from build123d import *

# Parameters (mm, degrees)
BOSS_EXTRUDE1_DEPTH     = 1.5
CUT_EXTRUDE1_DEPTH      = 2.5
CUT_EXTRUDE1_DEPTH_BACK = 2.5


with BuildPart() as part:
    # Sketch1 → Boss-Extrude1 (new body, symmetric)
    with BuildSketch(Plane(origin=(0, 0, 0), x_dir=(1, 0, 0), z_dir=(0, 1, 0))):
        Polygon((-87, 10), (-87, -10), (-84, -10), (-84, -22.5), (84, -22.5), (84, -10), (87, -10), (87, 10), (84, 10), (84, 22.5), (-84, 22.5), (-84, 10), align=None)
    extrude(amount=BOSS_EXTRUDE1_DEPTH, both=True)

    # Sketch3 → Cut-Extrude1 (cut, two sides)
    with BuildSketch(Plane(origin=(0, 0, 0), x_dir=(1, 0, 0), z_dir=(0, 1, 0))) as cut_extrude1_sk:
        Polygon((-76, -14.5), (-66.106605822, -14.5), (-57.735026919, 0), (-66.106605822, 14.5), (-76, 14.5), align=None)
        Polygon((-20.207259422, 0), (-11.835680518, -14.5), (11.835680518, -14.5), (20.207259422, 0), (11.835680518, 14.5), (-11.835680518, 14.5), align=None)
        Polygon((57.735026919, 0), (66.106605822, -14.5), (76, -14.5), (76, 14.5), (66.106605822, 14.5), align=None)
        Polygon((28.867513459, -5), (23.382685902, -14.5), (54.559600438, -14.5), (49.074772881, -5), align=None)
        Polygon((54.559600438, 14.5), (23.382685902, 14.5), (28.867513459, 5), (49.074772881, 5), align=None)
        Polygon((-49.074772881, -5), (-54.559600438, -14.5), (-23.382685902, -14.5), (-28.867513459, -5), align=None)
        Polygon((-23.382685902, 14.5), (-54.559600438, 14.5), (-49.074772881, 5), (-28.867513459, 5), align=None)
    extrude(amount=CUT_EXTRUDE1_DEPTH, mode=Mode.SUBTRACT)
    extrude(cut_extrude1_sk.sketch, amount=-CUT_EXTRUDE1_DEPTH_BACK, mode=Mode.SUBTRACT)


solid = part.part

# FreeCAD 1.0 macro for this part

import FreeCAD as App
import Part
import Sketcher
from FreeCAD import Vector
Q = App.Units.Quantity

doc = App.newDocument("Part")
body = doc.addObject("PartDesign::Body", "Body")

# Sketch on XZ plane
sketch1 = doc.addObject("Sketcher::SketchObject", "Sketch")
body.addObject(sketch1)
sketch1.AttachmentSupport = (doc.XZ_Plane, [""])
sketch1.MapMode = "FlatFace"
sketch1.addGeometry([
    Part.LineSegment(Vector(-87, -10, 0), Vector(-87, 10, 0)),  # 0
    Part.LineSegment(Vector(-87, 10, 0), Vector(-84, 10, 0)),  # 1
    Part.LineSegment(Vector(-84, 10, 0), Vector(-84, 22.5, 0)),  # 2
    Part.LineSegment(Vector(-84, 22.5, 0), Vector(84, 22.5, 0)),  # 3
    Part.LineSegment(Vector(84, 22.5, 0), Vector(84, 10, 0)),  # 4
    Part.LineSegment(Vector(84, 10, 0), Vector(87, 10, 0)),  # 5
    Part.LineSegment(Vector(87, 10, 0), Vector(87, -10, 0)),  # 6
    Part.LineSegment(Vector(87, -10, 0), Vector(84, -10, 0)),  # 7
    Part.LineSegment(Vector(84, -10, 0), Vector(84, -22.5, 0)),  # 8
    Part.LineSegment(Vector(84, -22.5, 0), Vector(-84, -22.5, 0)),  # 9
    Part.LineSegment(Vector(-84, -22.5, 0), Vector(-84, -10, 0)),  # 10
    Part.LineSegment(Vector(-84, -10, 0), Vector(-87, -10, 0)),  # 11
], False)
sketch1.addConstraint([
    Sketcher.Constraint("Coincident", 0, 2, 1, 1),
    Sketcher.Constraint("Coincident", 1, 2, 2, 1),
    Sketcher.Constraint("Coincident", 2, 2, 3, 1),
    Sketcher.Constraint("Coincident", 3, 2, 4, 1),
    Sketcher.Constraint("Coincident", 4, 2, 5, 1),
    Sketcher.Constraint("Coincident", 5, 2, 6, 1),
    Sketcher.Constraint("Coincident", 6, 2, 7, 1),
    Sketcher.Constraint("Coincident", 7, 2, 8, 1),
    Sketcher.Constraint("Coincident", 8, 2, 9, 1),
    Sketcher.Constraint("Coincident", 9, 2, 10, 1),
    Sketcher.Constraint("Coincident", 10, 2, 11, 1),
    Sketcher.Constraint("Coincident", 11, 2, 0, 1),
    Sketcher.Constraint("Vertical", 0),
    Sketcher.Constraint("Horizontal", 1),
    Sketcher.Constraint("Vertical", 2),
    Sketcher.Constraint("Horizontal", 3),
    Sketcher.Constraint("Vertical", 4),
    Sketcher.Constraint("Horizontal", 5),
    Sketcher.Constraint("Vertical", 6),
    Sketcher.Constraint("Horizontal", 7),
    Sketcher.Constraint("Vertical", 8),
    Sketcher.Constraint("Horizontal", 9),
    Sketcher.Constraint("Vertical", 10),
    Sketcher.Constraint("Horizontal", 11),
    Sketcher.Constraint("Symmetric", 0, 2, 6, 2, -1, 1),
    Sketcher.Constraint("Symmetric", 2, 2, 8, 2, -1, 1),
    Sketcher.Constraint("Symmetric", 4, 2, 10, 2, -1, 1),
    Sketcher.Constraint("Symmetric", 1, 2, 4, 2, -2),
    Sketcher.Constraint("DistanceX", 1, 1, 1, 2, Q("3 mm")),
    Sketcher.Constraint("DistanceX", 3, 1, 3, 2, Q("168 mm")),
    Sketcher.Constraint("DistanceY", 0, 1, 0, 2, Q("20 mm")),
    Sketcher.Constraint("DistanceY", 2, 1, 2, 2, Q("12.5 mm")),
])
pad1 = doc.addObject("PartDesign::Pad", "Pad")
body.addObject(pad1)
pad1.Profile = sketch1
pad1.Length = 3
pad1.Midplane = True

# Sketch on XZ plane
sketch2 = doc.addObject("Sketcher::SketchObject", "Sketch001")
body.addObject(sketch2)
sketch2.AttachmentSupport = (doc.XZ_Plane, [""])
sketch2.MapMode = "FlatFace"
sketch2.addGeometry([
    Part.LineSegment(Vector(-76, 14, 0), Vector(-66, 14, 0)),  # 0
    Part.LineSegment(Vector(-66, 14, 0), Vector(-58, 0, 0)),  # 1
    Part.LineSegment(Vector(-58, 0, 0), Vector(-66, -14, 0)),  # 2
    Part.LineSegment(Vector(-66, -14, 0), Vector(-76, -14, 0)),  # 3
    Part.LineSegment(Vector(-76, -14, 0), Vector(-76, 14, 0)),  # 4
    Part.LineSegment(Vector(-20, 0, 0), Vector(-12, 14, 0)),  # 5
    Part.LineSegment(Vector(-12, 14, 0), Vector(12, 14, 0)),  # 6
    Part.LineSegment(Vector(12, 14, 0), Vector(20, 0, 0)),  # 7
    Part.LineSegment(Vector(20, 0, 0), Vector(12, -14, 0)),  # 8
    Part.LineSegment(Vector(12, -14, 0), Vector(-12, -14, 0)),  # 9
    Part.LineSegment(Vector(-12, -14, 0), Vector(-20, 0, 0)),  # 10
    Part.LineSegment(Vector(58, 0, 0), Vector(66, 14, 0)),  # 11
    Part.LineSegment(Vector(66, 14, 0), Vector(76, 14, 0)),  # 12
    Part.LineSegment(Vector(76, 14, 0), Vector(76, -14, 0)),  # 13
    Part.LineSegment(Vector(76, -14, 0), Vector(66, -14, 0)),  # 14
    Part.LineSegment(Vector(66, -14, 0), Vector(58, 0, 0)),  # 15
    Part.LineSegment(Vector(29, 5, 0), Vector(23, 14, 0)),  # 16
    Part.LineSegment(Vector(23, 14, 0), Vector(55, 14, 0)),  # 17
    Part.LineSegment(Vector(55, 14, 0), Vector(49, 5, 0)),  # 18
    Part.LineSegment(Vector(49, 5, 0), Vector(29, 5, 0)),  # 19
    Part.LineSegment(Vector(55, -14, 0), Vector(23, -14, 0)),  # 20
    Part.LineSegment(Vector(23, -14, 0), Vector(29, -5, 0)),  # 21
    Part.LineSegment(Vector(29, -5, 0), Vector(49, -5, 0)),  # 22
    Part.LineSegment(Vector(49, -5, 0), Vector(55, -14, 0)),  # 23
    Part.LineSegment(Vector(-49, 5, 0), Vector(-55, 14, 0)),  # 24
    Part.LineSegment(Vector(-55, 14, 0), Vector(-23, 14, 0)),  # 25
    Part.LineSegment(Vector(-23, 14, 0), Vector(-29, 5, 0)),  # 26
    Part.LineSegment(Vector(-29, 5, 0), Vector(-49, 5, 0)),  # 27
    Part.LineSegment(Vector(-23, -14, 0), Vector(-55, -14, 0)),  # 28
    Part.LineSegment(Vector(-55, -14, 0), Vector(-49, -5, 0)),  # 29
    Part.LineSegment(Vector(-49, -5, 0), Vector(-29, -5, 0)),  # 30
    Part.LineSegment(Vector(-29, -5, 0), Vector(-23, -14, 0)),  # 31
], False)
sketch2.addConstraint([
    Sketcher.Constraint("Coincident", 0, 2, 1, 1),
    Sketcher.Constraint("Coincident", 1, 2, 2, 1),
    Sketcher.Constraint("Coincident", 2, 2, 3, 1),
    Sketcher.Constraint("Coincident", 3, 2, 4, 1),
    Sketcher.Constraint("Coincident", 4, 2, 0, 1),
    Sketcher.Constraint("Coincident", 5, 2, 6, 1),
    Sketcher.Constraint("Coincident", 6, 2, 7, 1),
    Sketcher.Constraint("Coincident", 7, 2, 8, 1),
    Sketcher.Constraint("Coincident", 8, 2, 9, 1),
    Sketcher.Constraint("Coincident", 9, 2, 10, 1),
    Sketcher.Constraint("Coincident", 10, 2, 5, 1),
    Sketcher.Constraint("Coincident", 11, 2, 12, 1),
    Sketcher.Constraint("Coincident", 12, 2, 13, 1),
    Sketcher.Constraint("Coincident", 13, 2, 14, 1),
    Sketcher.Constraint("Coincident", 14, 2, 15, 1),
    Sketcher.Constraint("Coincident", 15, 2, 11, 1),
    Sketcher.Constraint("Coincident", 16, 2, 17, 1),
    Sketcher.Constraint("Coincident", 17, 2, 18, 1),
    Sketcher.Constraint("Coincident", 18, 2, 19, 1),
    Sketcher.Constraint("Coincident", 19, 2, 16, 1),
    Sketcher.Constraint("Coincident", 20, 2, 21, 1),
    Sketcher.Constraint("Coincident", 21, 2, 22, 1),
    Sketcher.Constraint("Coincident", 22, 2, 23, 1),
    Sketcher.Constraint("Coincident", 23, 2, 20, 1),
    Sketcher.Constraint("Coincident", 24, 2, 25, 1),
    Sketcher.Constraint("Coincident", 25, 2, 26, 1),
    Sketcher.Constraint("Coincident", 26, 2, 27, 1),
    Sketcher.Constraint("Coincident", 27, 2, 24, 1),
    Sketcher.Constraint("Coincident", 28, 2, 29, 1),
    Sketcher.Constraint("Coincident", 29, 2, 30, 1),
    Sketcher.Constraint("Coincident", 30, 2, 31, 1),
    Sketcher.Constraint("Coincident", 31, 2, 28, 1),
    Sketcher.Constraint("Horizontal", 0),
    Sketcher.Constraint("Horizontal", 3),
    Sketcher.Constraint("Vertical", 4),
    Sketcher.Constraint("Horizontal", 6),
    Sketcher.Constraint("Horizontal", 9),
    Sketcher.Constraint("Horizontal", 12),
    Sketcher.Constraint("Vertical", 13),
    Sketcher.Constraint("Horizontal", 14),
    Sketcher.Constraint("Horizontal", 17),
    Sketcher.Constraint("Horizontal", 19),
    Sketcher.Constraint("Horizontal", 20),
    Sketcher.Constraint("Horizontal", 22),
    Sketcher.Constraint("Horizontal", 25),
    Sketcher.Constraint("Horizontal", 27),
    Sketcher.Constraint("Horizontal", 28),
    Sketcher.Constraint("Horizontal", 30),
    Sketcher.Constraint("Symmetric", 5, 2, 8, 2, -1, 1),
    Sketcher.Constraint("Symmetric", 7, 2, 10, 2, -1, 1),
    Sketcher.Constraint("Symmetric", 2, 2, 11, 2, -1, 1),
    Sketcher.Constraint("Symmetric", 4, 2, 13, 2, -1, 1),
    Sketcher.Constraint("Symmetric", 1, 2, 15, 2, -1, 1),
    Sketcher.Constraint("Symmetric", 23, 2, 24, 2, -1, 1),
    Sketcher.Constraint("Symmetric", 21, 2, 26, 2, -1, 1),
    Sketcher.Constraint("Symmetric", 17, 2, 28, 2, -1, 1),
    Sketcher.Constraint("Symmetric", 18, 2, 29, 2, -1, 1),
    Sketcher.Constraint("Symmetric", 0, 2, 11, 2, -2),
    Sketcher.Constraint("Symmetric", 17, 2, 24, 2, -2),
    Sketcher.Constraint("Symmetric", 19, 2, 26, 2, -2),
    Sketcher.Constraint("PointOnObject", 1, 2, -1),
    Sketcher.Constraint("PointOnObject", 7, 2, -1),
    Sketcher.Constraint("Parallel", 2, 5),
    Sketcher.Constraint("Parallel", 1, 7),
    Sketcher.Constraint("Parallel", 7, 10),
    Sketcher.Constraint("Parallel", 10, 15),
    Sketcher.Constraint("Parallel", 15, 16),
    Sketcher.Constraint("Parallel", 11, 18),
    Sketcher.Constraint("Parallel", 18, 21),
    Sketcher.Constraint("Parallel", 16, 23),
    Sketcher.Constraint("Parallel", 23, 24),
    Sketcher.Constraint("Parallel", 21, 26),
    Sketcher.Constraint("Parallel", 24, 31),
    Sketcher.Constraint("Horizontal", 4, 2, 5, 2),
    Sketcher.Constraint("Horizontal", 12, 2, 16, 2),
    Sketcher.Constraint("Vertical", 26, 2, 30, 2),
    Sketcher.Constraint("DistanceY", 4, 1, 4, 2, Q("29 mm")),
    Sketcher.Constraint("Angle", 1, Q("-60 deg")),
    Sketcher.Constraint("DistanceX", 3, 2, -1, 1, Q("76 mm")),
    Sketcher.Constraint("DistanceY", -1, 1, 18, 2, Q("5 mm")),
    Sketcher.Constraint("DistanceX", 6, 1, 6, 2, Q("23.671361 mm")),
    Sketcher.Constraint("DistanceX", 19, 2, 19, 1, Q("20.207259 mm")),
    Sketcher.Constraint("DistanceX", -1, 1, 17, 2, Q("54.5596 mm")),
    Sketcher.Constraint("DistanceX", 0, 1, 0, 2, Q("9.893394 mm")),
])
pocket1 = doc.addObject("PartDesign::Pocket", "Pocket")
body.addObject(pocket1)
pocket1.Profile = sketch2
pocket1.Type = "ThroughAll"
pocket1.Midplane = True

doc.recompute()
